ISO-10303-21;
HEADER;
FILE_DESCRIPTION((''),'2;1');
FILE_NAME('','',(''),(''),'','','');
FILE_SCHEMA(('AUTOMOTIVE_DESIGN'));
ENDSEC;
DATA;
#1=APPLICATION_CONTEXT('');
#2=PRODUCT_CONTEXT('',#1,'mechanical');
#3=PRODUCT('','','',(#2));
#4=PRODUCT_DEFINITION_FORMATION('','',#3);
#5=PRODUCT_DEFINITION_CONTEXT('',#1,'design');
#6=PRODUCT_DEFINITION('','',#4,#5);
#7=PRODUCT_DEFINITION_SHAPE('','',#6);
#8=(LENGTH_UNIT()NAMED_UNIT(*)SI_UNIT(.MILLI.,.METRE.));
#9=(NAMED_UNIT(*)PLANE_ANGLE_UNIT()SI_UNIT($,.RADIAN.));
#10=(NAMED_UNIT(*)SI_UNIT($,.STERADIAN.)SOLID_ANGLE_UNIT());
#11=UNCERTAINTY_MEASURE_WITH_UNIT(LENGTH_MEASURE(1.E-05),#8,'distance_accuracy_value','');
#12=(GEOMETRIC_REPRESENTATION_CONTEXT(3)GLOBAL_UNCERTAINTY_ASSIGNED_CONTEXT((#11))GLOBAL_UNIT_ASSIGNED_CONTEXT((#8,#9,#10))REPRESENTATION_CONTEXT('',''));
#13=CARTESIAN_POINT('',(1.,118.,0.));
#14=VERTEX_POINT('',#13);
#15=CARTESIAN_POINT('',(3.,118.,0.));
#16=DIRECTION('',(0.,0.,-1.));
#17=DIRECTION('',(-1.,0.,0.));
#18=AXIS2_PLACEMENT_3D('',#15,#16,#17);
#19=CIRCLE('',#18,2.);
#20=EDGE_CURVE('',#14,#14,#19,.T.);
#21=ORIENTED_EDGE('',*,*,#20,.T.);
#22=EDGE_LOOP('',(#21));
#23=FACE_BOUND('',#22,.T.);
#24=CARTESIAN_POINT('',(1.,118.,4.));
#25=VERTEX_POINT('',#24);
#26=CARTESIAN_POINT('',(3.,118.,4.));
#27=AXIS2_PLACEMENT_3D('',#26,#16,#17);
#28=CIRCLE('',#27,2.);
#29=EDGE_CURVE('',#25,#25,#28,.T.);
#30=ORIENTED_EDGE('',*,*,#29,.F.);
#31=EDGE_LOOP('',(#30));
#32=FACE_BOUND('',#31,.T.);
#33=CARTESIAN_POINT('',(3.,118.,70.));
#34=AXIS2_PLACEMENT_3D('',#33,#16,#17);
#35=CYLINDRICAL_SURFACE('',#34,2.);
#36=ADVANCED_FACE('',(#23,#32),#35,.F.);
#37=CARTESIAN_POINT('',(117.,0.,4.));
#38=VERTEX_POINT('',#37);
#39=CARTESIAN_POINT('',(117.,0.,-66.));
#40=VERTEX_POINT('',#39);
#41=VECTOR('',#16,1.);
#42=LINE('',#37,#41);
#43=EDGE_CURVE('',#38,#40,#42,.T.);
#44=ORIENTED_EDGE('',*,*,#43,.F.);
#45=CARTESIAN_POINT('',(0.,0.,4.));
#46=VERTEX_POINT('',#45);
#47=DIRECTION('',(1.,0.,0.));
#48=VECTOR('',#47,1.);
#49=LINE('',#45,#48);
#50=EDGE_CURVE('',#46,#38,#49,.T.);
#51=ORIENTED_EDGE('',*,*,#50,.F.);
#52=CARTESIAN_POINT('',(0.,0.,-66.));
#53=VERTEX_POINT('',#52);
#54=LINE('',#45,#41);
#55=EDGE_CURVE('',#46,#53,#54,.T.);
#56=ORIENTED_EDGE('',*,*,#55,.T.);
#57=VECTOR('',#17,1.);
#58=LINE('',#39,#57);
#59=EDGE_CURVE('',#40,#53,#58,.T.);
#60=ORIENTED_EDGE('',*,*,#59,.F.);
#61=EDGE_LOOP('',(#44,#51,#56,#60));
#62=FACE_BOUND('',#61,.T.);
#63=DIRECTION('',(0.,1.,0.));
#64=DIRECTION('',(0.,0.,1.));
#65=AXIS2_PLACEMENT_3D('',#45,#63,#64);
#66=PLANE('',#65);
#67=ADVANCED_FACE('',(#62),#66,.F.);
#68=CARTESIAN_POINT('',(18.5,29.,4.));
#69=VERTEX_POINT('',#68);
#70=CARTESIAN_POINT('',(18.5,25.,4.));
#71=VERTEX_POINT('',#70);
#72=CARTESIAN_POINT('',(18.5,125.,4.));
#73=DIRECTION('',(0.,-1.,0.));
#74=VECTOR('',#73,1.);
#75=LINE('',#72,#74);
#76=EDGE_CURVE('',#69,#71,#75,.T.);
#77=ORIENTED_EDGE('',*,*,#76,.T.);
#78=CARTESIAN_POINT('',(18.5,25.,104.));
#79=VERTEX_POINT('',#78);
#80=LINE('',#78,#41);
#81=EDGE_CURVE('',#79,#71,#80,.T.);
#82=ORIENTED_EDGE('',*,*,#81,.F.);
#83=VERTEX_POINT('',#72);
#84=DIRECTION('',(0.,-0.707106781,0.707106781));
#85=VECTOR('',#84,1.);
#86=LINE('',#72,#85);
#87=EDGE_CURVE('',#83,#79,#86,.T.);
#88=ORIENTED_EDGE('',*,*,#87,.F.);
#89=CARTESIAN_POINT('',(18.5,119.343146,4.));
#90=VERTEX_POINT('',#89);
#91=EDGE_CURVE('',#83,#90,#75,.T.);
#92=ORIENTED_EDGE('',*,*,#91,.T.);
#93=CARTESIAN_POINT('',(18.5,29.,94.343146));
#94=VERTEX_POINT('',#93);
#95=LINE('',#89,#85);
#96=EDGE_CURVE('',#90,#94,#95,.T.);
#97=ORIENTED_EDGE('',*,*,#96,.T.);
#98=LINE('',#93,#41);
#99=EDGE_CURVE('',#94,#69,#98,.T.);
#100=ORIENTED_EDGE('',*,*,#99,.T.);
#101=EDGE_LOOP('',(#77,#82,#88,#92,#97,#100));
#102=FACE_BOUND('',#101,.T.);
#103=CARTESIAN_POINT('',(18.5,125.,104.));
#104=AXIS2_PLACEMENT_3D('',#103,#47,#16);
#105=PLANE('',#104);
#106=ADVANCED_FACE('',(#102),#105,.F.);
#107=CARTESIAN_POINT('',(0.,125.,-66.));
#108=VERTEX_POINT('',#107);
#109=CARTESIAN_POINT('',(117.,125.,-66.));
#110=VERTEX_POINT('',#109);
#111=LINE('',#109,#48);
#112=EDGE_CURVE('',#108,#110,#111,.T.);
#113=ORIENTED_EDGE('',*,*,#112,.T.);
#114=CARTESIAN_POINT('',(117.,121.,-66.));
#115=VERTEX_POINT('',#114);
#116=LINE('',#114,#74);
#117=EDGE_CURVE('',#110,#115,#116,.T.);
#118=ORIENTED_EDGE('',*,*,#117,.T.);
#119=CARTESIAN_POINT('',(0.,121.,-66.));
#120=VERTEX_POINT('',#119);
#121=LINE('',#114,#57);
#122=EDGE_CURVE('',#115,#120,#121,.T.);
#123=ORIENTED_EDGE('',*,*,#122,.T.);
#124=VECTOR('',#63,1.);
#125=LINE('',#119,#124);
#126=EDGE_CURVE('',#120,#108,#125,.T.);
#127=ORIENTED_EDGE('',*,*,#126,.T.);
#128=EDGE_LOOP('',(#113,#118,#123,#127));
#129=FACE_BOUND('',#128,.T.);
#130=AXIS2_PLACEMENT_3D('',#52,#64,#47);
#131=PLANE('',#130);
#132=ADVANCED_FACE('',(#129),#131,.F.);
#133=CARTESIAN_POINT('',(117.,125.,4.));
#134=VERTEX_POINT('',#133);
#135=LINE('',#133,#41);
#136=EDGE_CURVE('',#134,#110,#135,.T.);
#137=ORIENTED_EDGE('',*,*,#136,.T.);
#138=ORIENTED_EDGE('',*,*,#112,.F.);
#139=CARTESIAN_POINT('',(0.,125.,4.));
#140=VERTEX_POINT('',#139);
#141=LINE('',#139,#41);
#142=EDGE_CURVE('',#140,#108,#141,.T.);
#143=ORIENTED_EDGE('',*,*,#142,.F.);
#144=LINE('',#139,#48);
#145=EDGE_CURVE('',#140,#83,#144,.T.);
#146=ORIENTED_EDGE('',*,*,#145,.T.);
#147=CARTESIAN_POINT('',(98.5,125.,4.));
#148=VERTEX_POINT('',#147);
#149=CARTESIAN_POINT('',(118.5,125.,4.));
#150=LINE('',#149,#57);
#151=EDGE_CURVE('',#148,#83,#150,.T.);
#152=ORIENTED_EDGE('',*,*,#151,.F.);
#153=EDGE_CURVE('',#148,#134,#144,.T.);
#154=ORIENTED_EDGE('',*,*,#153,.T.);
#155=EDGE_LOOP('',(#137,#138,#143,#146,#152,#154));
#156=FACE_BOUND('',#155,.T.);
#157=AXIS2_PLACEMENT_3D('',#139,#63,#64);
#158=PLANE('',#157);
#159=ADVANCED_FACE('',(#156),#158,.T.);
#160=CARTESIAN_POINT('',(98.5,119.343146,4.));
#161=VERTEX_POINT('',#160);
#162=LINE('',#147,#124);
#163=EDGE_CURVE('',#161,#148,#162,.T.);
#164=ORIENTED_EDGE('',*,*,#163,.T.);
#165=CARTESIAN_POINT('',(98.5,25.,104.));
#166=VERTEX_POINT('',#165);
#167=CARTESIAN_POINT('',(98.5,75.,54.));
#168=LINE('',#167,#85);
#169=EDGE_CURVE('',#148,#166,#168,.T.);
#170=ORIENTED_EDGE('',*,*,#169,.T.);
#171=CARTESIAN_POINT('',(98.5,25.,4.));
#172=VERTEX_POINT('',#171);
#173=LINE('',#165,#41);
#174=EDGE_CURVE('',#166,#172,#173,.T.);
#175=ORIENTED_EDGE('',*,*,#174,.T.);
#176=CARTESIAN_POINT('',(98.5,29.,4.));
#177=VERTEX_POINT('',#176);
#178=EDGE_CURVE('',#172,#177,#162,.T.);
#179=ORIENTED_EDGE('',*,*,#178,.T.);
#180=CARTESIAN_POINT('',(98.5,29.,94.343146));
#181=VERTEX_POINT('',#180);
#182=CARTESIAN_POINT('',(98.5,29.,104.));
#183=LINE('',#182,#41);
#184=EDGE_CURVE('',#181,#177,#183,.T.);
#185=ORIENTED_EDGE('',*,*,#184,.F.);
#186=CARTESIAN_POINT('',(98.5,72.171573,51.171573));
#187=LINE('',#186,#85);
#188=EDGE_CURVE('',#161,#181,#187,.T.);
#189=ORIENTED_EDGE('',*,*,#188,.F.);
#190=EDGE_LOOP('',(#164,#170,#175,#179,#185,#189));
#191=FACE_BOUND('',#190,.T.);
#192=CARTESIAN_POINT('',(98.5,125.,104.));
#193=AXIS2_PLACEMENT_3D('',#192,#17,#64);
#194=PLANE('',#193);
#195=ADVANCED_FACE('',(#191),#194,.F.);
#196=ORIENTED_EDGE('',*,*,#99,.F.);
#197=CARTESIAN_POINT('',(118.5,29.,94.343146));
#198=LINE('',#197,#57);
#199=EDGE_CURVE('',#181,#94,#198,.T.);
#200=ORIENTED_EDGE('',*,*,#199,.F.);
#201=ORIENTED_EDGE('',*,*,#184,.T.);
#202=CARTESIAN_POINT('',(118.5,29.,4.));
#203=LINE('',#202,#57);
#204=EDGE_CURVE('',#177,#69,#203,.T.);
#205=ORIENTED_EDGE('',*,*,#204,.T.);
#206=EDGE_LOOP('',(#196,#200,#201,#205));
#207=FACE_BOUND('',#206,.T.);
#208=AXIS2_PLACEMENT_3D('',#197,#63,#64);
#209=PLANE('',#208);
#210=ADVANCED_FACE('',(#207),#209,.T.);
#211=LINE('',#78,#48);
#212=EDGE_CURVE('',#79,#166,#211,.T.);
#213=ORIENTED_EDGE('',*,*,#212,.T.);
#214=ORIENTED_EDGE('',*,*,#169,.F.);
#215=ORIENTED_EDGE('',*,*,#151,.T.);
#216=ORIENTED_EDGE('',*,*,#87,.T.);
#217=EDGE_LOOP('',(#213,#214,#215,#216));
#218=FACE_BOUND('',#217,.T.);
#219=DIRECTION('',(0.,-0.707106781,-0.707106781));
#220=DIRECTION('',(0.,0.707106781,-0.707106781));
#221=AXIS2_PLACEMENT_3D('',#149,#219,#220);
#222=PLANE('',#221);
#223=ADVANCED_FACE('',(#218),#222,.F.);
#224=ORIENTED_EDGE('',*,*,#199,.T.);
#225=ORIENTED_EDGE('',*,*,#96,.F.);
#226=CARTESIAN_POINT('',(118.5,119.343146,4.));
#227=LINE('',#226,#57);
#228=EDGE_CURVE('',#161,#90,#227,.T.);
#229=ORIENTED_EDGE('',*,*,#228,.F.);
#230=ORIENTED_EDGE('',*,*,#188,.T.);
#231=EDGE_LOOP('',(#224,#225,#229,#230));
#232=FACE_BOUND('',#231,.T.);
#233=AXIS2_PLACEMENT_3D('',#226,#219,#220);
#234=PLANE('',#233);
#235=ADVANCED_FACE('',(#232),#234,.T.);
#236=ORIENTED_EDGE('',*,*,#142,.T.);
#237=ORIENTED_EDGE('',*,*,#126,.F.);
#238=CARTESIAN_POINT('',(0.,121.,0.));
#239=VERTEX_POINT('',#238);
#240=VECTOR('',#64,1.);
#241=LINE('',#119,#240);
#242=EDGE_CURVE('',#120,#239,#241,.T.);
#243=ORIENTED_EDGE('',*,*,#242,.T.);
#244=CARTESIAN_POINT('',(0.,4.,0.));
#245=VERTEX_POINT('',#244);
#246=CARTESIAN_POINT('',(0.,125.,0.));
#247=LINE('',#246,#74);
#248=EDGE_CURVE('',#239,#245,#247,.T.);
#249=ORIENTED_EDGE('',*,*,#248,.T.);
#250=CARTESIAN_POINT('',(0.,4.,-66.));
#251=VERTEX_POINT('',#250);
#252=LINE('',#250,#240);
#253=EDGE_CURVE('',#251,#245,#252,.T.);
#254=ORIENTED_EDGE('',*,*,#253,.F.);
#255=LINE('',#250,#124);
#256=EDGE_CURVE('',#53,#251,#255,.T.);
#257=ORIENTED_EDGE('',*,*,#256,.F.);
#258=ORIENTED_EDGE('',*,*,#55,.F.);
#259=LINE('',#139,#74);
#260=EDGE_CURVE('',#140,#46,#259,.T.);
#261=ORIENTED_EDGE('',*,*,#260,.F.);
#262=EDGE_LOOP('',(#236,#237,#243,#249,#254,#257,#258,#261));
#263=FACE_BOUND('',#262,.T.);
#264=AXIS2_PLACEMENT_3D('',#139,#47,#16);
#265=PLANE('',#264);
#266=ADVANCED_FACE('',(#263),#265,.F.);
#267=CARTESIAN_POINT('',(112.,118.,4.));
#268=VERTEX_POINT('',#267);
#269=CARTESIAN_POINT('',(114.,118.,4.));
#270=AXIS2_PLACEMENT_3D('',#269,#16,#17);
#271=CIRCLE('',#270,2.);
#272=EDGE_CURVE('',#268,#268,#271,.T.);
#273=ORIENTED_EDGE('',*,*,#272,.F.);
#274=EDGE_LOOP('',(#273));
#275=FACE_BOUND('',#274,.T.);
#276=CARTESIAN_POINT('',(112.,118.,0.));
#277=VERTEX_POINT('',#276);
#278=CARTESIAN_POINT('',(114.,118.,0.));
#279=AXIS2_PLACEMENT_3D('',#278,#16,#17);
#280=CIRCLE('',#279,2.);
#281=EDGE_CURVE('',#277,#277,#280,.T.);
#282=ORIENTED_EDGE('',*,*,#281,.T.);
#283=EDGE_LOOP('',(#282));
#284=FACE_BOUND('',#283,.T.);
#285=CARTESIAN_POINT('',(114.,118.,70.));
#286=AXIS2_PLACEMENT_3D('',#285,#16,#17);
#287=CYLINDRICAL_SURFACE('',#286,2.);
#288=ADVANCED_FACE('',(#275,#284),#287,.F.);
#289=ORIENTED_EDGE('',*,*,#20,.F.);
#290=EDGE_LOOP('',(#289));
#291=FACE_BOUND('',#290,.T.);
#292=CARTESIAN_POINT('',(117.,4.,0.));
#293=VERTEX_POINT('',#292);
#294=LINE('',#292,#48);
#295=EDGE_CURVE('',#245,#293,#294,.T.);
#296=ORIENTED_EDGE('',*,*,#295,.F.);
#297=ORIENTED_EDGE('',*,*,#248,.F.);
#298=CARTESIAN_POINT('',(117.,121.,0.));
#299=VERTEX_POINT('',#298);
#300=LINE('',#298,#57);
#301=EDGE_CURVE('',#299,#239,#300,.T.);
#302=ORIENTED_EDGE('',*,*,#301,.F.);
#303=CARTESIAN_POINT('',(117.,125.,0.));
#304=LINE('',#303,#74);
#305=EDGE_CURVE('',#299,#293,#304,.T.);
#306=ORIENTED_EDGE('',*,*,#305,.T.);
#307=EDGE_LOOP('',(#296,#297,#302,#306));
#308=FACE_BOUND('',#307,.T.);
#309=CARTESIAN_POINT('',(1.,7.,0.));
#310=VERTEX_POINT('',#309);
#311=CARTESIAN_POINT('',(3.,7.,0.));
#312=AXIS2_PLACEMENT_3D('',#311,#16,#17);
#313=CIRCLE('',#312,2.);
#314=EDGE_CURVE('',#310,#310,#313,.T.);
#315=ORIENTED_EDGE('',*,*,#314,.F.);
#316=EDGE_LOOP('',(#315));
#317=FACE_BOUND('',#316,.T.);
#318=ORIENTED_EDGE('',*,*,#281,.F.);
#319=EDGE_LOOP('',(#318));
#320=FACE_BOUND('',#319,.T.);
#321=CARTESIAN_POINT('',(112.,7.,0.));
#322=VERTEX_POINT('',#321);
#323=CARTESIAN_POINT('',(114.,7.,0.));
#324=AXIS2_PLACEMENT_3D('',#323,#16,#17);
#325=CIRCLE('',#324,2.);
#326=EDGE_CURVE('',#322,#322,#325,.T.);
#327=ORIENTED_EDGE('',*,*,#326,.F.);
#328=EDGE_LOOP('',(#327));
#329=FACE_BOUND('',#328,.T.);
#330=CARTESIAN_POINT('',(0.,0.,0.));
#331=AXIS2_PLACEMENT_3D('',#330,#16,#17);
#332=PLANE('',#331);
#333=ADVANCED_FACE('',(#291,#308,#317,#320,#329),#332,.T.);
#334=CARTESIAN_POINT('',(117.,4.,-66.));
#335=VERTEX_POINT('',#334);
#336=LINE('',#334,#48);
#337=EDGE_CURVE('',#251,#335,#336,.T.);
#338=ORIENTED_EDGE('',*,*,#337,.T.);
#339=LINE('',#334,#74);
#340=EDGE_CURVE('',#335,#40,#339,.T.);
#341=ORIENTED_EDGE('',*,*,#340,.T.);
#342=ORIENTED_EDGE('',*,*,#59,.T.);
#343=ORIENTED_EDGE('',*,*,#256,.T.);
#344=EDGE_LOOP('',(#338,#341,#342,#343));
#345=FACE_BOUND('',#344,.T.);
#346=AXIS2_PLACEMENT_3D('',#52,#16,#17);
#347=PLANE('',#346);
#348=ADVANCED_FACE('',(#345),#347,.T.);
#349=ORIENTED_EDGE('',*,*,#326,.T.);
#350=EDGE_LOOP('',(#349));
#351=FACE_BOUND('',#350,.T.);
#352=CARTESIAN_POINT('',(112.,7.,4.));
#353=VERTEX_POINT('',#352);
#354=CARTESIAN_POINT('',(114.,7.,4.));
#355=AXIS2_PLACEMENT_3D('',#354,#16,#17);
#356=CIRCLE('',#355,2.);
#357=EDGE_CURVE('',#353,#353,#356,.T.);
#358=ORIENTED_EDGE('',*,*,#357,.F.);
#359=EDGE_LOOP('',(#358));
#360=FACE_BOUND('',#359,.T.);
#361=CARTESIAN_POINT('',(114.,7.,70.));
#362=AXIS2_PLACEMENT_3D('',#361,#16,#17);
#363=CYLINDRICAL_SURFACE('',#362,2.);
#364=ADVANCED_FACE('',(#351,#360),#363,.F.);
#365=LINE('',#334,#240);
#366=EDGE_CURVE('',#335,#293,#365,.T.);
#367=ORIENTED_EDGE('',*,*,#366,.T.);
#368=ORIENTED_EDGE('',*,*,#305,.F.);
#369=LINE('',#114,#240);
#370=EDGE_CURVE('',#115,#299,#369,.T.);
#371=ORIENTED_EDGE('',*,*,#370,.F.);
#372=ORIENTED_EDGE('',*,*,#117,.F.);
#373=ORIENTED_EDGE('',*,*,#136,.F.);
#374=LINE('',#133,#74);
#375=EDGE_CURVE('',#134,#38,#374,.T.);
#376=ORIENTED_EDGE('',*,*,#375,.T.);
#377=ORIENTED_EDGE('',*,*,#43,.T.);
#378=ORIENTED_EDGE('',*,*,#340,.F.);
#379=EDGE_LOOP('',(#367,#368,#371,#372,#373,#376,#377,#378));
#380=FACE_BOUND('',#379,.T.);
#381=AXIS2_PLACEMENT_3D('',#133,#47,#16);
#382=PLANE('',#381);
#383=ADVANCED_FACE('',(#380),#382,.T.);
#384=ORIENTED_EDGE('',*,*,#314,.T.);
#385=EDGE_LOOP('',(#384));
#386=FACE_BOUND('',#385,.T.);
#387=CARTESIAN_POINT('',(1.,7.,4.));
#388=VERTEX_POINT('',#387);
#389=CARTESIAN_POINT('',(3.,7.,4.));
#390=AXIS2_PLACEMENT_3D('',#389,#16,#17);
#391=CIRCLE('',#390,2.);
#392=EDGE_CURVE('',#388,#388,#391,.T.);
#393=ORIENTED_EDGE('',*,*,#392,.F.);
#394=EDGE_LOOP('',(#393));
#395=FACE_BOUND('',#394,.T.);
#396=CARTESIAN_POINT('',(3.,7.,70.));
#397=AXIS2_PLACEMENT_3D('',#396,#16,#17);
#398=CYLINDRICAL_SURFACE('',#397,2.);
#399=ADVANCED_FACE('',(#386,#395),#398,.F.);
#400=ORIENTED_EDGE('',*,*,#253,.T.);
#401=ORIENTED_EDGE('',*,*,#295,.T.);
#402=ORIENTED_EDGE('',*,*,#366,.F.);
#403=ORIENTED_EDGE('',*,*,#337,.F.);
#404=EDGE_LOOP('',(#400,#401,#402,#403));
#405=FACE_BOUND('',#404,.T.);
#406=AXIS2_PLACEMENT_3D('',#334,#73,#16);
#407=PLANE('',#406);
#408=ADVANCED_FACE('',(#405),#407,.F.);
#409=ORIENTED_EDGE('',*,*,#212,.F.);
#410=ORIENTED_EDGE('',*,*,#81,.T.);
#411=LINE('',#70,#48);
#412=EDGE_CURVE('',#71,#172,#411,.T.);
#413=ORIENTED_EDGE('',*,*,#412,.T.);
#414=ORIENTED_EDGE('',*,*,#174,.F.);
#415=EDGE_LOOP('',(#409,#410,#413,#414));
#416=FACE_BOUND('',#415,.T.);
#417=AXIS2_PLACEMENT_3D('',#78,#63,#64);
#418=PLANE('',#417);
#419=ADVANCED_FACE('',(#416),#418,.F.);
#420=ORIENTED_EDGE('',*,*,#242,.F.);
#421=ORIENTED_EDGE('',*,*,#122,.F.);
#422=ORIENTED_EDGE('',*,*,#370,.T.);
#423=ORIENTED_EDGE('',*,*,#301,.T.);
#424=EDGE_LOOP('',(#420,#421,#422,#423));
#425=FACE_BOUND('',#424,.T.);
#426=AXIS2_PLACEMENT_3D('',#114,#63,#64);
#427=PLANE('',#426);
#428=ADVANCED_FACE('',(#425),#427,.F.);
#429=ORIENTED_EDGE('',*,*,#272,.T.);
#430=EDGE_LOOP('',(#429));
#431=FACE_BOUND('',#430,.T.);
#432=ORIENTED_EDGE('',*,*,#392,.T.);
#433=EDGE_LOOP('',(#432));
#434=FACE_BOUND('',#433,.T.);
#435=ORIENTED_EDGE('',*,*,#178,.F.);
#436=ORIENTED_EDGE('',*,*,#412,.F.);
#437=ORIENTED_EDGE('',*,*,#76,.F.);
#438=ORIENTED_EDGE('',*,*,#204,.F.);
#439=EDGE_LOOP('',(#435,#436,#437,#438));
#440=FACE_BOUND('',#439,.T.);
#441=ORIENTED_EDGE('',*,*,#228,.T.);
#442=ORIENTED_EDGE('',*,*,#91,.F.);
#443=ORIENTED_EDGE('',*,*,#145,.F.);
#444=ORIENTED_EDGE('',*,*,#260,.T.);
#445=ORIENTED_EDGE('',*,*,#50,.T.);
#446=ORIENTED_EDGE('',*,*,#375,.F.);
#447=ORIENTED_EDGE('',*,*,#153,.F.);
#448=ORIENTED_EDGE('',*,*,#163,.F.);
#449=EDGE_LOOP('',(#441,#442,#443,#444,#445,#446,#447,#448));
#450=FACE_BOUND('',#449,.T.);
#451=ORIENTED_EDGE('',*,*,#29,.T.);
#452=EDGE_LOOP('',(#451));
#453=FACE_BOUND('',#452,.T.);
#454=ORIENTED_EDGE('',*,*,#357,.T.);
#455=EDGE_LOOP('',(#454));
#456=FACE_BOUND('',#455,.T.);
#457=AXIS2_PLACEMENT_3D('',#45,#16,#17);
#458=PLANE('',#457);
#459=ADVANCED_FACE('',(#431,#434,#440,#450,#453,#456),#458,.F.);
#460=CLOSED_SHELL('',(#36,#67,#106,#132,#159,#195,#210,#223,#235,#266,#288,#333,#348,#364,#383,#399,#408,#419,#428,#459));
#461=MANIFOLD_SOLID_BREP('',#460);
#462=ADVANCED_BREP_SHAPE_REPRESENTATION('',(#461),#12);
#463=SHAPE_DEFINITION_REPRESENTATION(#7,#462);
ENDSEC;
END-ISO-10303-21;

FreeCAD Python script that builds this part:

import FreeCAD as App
import Part
import Sketcher


def add_polygon(sketch, points):
    """Adds a closed chain of lines whose ends are joined by coincident constraints."""
    first, n = sketch.GeometryCount, len(points)
    for a, b in zip(points, points[1:] + points[:1]):
        sketch.addGeometry(Part.LineSegment(App.Vector(*a, 0), App.Vector(*b, 0)), False)
    for i in range(n):
        sketch.addConstraint(Sketcher.Constraint("Coincident", first + i, 2, first + (i + 1) % n, 1))

doc = App.newDocument("Part")
body = doc.addObject("PartDesign::Body", "Body")

sketch1 = doc.addObject("Sketcher::SketchObject", "Sketch")
body.addObject(sketch1)
sketch1.AttachmentSupport = (doc.XY_Plane, [""])
sketch1.MapMode = "FlatFace"
add_polygon(sketch1, [(0, 125), (0, 0), (117, 0), (117, 125)])
sketch1.addConstraint([
    Sketcher.Constraint("Vertical", 0),
    Sketcher.Constraint("Horizontal", 1),
    Sketcher.Constraint("Vertical", 2),
    Sketcher.Constraint("Horizontal", 3),
    Sketcher.Constraint("Coincident", 0, 2, -1, 1),
    Sketcher.Constraint("DistanceX", 1, 1, 1, 2, 117.0),
    Sketcher.Constraint("DistanceY", 0, 2, 0, 1, 125.0),
])
pad1 = doc.addObject("PartDesign::Pad", "Pad")
body.addObject(pad1)
pad1.Profile = sketch1
pad1.Length = 4

sketch2 = doc.addObject("Sketcher::SketchObject", "Sketch001")
body.addObject(sketch2)
sketch2.AttachmentSupport = (doc.XY_Plane, [""])
sketch2.MapMode = "FlatFace"
sketch2.AttachmentOffset = App.Placement(App.Vector(0, 0, 4), App.Rotation())
add_polygon(sketch2, [(18, 125), (18, 25), (98, 25), (98, 125)])
sketch2.addConstraint([
    Sketcher.Constraint("Vertical", 0),
    Sketcher.Constraint("Horizontal", 1),
    Sketcher.Constraint("Vertical", 2),
    Sketcher.Constraint("Horizontal", 3),
    Sketcher.Constraint("DistanceX", 1, 1, 1, 2, 80.0),
    Sketcher.Constraint("DistanceY", 0, 2, 0, 1, 100.0),
    Sketcher.Constraint("DistanceY", -1, 1, 0, 2, 25.0),
    Sketcher.Constraint("DistanceX", -1, 1, 0, 2, 18.5),
])
pad2 = doc.addObject("PartDesign::Pad", "Pad001")
body.addObject(pad2)
pad2.Profile = sketch2
pad2.Length = 100

sketch3 = doc.addObject("Sketcher::SketchObject", "Sketch002")
body.addObject(sketch3)
sketch3.AttachmentSupport = (doc.YZ_Plane, [""])
sketch3.MapMode = "FlatFace"
sketch3.AttachmentOffset = App.Placement(App.Vector(0, 0, 18.5), App.Rotation())
add_polygon(sketch3, [(25, 104), (125, 104), (125, 4)])
sketch3.addConstraint([
    Sketcher.Constraint("Horizontal", 0),
    Sketcher.Constraint("Vertical", 1),
    Sketcher.Constraint("Equal", 0, 1),
    Sketcher.Constraint("DistanceX", 0, 1, 0, 2, 100.0),
    Sketcher.Constraint("DistanceX", -1, 1, 0, 2, 125.0),
    Sketcher.Constraint("DistanceY", -1, 1, 0, 2, 104.0),
])
pocket1 = doc.addObject("PartDesign::Pocket", "Pocket")
body.addObject(pocket1)
pocket1.Profile = sketch3
pocket1.Length = 100
pocket1.Reversed = True

sketch4 = doc.addObject("Sketcher::SketchObject", "Sketch003")
body.addObject(sketch4)
sketch4.AttachmentSupport = (doc.YZ_Plane, [""])
sketch4.MapMode = "FlatFace"
sketch4.AttachmentOffset = App.Placement(App.Vector(0, 0, 18.5), App.Rotation())
add_polygon(sketch4, [(29, 94), (119, 4), (29, 4)])
sketch4.addConstraint([
    Sketcher.Constraint("Horizontal", 1),
    Sketcher.Constraint("Vertical", 2),
    Sketcher.Constraint("Equal", 1, 2),
    Sketcher.Constraint("DistanceY", -1, 1, 0, 2, 4.0),
    Sketcher.Constraint("DistanceX", -1, 1, 1, 2, 29.0),
    Sketcher.Constraint("Distance", 0, 127.764502),
])
pocket2 = doc.addObject("PartDesign::Pocket", "Pocket001")
body.addObject(pocket2)
pocket2.Profile = sketch4
pocket2.Length = 100
pocket2.Reversed = True

sketch5 = doc.addObject("Sketcher::SketchObject", "Sketch004")
body.addObject(sketch5)
sketch5.AttachmentSupport = (doc.XY_Plane, [""])
sketch5.MapMode = "FlatFace"
add_polygon(sketch5, [(117, 125), (117, 121), (0, 121), (0, 125)])
add_polygon(sketch5, [(117, 4), (117, 0), (0, 0), (0, 4)])
sketch5.addConstraint([
    Sketcher.Constraint("Vertical", 0),
    Sketcher.Constraint("Horizontal", 1),
    Sketcher.Constraint("Vertical", 2),
    Sketcher.Constraint("Horizontal", 3),
    Sketcher.Constraint("Vertical", 4),
    Sketcher.Constraint("Horizontal", 5),
    Sketcher.Constraint("Vertical", 6),
    Sketcher.Constraint("Horizontal", 7),
    Sketcher.Constraint("Coincident", 5, 2, -1, 1),
    Sketcher.Constraint("PointOnObject", 1, 2, -2),
    Sketcher.Constraint("Vertical", 3, 2, 4, 2),
    Sketcher.Constraint("Equal", 2, 4),
    Sketcher.Constraint("DistanceX", 1, 2, 1, 1, 117.0),
    Sketcher.Constraint("DistanceY", 0, 2, 0, 1, 4.0),
    Sketcher.Constraint("DistanceY", -1, 1, 0, 2, 121.0),
])
pad3 = doc.addObject("PartDesign::Pad", "Pad002")
body.addObject(pad3)
pad3.Profile = sketch5
pad3.Length = 66
pad3.Reversed = True

sketch6 = doc.addObject("Sketcher::SketchObject", "Sketch005")
body.addObject(sketch6)
sketch6.AttachmentSupport = (doc.XY_Plane, [""])
sketch6.MapMode = "FlatFace"
sketch6.addGeometry([
    Part.Circle(App.Vector(114, 118, 0), App.Vector(0, 0, 1), 2),
    Part.Circle(App.Vector(3, 118, 0), App.Vector(0, 0, 1), 2),
    Part.Circle(App.Vector(3, 7, 0), App.Vector(0, 0, 1), 2),
    Part.Circle(App.Vector(114, 7, 0), App.Vector(0, 0, 1), 2),
], False)
sketch6.addConstraint([
    Sketcher.Constraint("Equal", 0, 1),
    Sketcher.Constraint("Equal", 1, 2),
    Sketcher.Constraint("Equal", 2, 3),
    Sketcher.Constraint("Horizontal", 0, 3, 1, 3),
    Sketcher.Constraint("Horizontal", 2, 3, 3, 3),
    Sketcher.Constraint("Vertical", 1, 3, 2, 3),
    Sketcher.Constraint("Vertical", 0, 3, 3, 3),
    Sketcher.Constraint("Diameter", 0, 4.0),
    Sketcher.Constraint("DistanceX", -1, 1, 0, 3, 114.0),
    Sketcher.Constraint("DistanceY", -1, 1, 0, 3, 118.0),
    Sketcher.Constraint("DistanceX", -1, 1, 1, 3, 3.0),
    Sketcher.Constraint("DistanceY", -1, 1, 2, 3, 7.0),
])
pocket3 = doc.addObject("PartDesign::Pocket", "Pocket002")
body.addObject(pocket3)
pocket3.Profile = sketch6
pocket3.Length = 70
pocket3.Reversed = True

doc.recompute()
